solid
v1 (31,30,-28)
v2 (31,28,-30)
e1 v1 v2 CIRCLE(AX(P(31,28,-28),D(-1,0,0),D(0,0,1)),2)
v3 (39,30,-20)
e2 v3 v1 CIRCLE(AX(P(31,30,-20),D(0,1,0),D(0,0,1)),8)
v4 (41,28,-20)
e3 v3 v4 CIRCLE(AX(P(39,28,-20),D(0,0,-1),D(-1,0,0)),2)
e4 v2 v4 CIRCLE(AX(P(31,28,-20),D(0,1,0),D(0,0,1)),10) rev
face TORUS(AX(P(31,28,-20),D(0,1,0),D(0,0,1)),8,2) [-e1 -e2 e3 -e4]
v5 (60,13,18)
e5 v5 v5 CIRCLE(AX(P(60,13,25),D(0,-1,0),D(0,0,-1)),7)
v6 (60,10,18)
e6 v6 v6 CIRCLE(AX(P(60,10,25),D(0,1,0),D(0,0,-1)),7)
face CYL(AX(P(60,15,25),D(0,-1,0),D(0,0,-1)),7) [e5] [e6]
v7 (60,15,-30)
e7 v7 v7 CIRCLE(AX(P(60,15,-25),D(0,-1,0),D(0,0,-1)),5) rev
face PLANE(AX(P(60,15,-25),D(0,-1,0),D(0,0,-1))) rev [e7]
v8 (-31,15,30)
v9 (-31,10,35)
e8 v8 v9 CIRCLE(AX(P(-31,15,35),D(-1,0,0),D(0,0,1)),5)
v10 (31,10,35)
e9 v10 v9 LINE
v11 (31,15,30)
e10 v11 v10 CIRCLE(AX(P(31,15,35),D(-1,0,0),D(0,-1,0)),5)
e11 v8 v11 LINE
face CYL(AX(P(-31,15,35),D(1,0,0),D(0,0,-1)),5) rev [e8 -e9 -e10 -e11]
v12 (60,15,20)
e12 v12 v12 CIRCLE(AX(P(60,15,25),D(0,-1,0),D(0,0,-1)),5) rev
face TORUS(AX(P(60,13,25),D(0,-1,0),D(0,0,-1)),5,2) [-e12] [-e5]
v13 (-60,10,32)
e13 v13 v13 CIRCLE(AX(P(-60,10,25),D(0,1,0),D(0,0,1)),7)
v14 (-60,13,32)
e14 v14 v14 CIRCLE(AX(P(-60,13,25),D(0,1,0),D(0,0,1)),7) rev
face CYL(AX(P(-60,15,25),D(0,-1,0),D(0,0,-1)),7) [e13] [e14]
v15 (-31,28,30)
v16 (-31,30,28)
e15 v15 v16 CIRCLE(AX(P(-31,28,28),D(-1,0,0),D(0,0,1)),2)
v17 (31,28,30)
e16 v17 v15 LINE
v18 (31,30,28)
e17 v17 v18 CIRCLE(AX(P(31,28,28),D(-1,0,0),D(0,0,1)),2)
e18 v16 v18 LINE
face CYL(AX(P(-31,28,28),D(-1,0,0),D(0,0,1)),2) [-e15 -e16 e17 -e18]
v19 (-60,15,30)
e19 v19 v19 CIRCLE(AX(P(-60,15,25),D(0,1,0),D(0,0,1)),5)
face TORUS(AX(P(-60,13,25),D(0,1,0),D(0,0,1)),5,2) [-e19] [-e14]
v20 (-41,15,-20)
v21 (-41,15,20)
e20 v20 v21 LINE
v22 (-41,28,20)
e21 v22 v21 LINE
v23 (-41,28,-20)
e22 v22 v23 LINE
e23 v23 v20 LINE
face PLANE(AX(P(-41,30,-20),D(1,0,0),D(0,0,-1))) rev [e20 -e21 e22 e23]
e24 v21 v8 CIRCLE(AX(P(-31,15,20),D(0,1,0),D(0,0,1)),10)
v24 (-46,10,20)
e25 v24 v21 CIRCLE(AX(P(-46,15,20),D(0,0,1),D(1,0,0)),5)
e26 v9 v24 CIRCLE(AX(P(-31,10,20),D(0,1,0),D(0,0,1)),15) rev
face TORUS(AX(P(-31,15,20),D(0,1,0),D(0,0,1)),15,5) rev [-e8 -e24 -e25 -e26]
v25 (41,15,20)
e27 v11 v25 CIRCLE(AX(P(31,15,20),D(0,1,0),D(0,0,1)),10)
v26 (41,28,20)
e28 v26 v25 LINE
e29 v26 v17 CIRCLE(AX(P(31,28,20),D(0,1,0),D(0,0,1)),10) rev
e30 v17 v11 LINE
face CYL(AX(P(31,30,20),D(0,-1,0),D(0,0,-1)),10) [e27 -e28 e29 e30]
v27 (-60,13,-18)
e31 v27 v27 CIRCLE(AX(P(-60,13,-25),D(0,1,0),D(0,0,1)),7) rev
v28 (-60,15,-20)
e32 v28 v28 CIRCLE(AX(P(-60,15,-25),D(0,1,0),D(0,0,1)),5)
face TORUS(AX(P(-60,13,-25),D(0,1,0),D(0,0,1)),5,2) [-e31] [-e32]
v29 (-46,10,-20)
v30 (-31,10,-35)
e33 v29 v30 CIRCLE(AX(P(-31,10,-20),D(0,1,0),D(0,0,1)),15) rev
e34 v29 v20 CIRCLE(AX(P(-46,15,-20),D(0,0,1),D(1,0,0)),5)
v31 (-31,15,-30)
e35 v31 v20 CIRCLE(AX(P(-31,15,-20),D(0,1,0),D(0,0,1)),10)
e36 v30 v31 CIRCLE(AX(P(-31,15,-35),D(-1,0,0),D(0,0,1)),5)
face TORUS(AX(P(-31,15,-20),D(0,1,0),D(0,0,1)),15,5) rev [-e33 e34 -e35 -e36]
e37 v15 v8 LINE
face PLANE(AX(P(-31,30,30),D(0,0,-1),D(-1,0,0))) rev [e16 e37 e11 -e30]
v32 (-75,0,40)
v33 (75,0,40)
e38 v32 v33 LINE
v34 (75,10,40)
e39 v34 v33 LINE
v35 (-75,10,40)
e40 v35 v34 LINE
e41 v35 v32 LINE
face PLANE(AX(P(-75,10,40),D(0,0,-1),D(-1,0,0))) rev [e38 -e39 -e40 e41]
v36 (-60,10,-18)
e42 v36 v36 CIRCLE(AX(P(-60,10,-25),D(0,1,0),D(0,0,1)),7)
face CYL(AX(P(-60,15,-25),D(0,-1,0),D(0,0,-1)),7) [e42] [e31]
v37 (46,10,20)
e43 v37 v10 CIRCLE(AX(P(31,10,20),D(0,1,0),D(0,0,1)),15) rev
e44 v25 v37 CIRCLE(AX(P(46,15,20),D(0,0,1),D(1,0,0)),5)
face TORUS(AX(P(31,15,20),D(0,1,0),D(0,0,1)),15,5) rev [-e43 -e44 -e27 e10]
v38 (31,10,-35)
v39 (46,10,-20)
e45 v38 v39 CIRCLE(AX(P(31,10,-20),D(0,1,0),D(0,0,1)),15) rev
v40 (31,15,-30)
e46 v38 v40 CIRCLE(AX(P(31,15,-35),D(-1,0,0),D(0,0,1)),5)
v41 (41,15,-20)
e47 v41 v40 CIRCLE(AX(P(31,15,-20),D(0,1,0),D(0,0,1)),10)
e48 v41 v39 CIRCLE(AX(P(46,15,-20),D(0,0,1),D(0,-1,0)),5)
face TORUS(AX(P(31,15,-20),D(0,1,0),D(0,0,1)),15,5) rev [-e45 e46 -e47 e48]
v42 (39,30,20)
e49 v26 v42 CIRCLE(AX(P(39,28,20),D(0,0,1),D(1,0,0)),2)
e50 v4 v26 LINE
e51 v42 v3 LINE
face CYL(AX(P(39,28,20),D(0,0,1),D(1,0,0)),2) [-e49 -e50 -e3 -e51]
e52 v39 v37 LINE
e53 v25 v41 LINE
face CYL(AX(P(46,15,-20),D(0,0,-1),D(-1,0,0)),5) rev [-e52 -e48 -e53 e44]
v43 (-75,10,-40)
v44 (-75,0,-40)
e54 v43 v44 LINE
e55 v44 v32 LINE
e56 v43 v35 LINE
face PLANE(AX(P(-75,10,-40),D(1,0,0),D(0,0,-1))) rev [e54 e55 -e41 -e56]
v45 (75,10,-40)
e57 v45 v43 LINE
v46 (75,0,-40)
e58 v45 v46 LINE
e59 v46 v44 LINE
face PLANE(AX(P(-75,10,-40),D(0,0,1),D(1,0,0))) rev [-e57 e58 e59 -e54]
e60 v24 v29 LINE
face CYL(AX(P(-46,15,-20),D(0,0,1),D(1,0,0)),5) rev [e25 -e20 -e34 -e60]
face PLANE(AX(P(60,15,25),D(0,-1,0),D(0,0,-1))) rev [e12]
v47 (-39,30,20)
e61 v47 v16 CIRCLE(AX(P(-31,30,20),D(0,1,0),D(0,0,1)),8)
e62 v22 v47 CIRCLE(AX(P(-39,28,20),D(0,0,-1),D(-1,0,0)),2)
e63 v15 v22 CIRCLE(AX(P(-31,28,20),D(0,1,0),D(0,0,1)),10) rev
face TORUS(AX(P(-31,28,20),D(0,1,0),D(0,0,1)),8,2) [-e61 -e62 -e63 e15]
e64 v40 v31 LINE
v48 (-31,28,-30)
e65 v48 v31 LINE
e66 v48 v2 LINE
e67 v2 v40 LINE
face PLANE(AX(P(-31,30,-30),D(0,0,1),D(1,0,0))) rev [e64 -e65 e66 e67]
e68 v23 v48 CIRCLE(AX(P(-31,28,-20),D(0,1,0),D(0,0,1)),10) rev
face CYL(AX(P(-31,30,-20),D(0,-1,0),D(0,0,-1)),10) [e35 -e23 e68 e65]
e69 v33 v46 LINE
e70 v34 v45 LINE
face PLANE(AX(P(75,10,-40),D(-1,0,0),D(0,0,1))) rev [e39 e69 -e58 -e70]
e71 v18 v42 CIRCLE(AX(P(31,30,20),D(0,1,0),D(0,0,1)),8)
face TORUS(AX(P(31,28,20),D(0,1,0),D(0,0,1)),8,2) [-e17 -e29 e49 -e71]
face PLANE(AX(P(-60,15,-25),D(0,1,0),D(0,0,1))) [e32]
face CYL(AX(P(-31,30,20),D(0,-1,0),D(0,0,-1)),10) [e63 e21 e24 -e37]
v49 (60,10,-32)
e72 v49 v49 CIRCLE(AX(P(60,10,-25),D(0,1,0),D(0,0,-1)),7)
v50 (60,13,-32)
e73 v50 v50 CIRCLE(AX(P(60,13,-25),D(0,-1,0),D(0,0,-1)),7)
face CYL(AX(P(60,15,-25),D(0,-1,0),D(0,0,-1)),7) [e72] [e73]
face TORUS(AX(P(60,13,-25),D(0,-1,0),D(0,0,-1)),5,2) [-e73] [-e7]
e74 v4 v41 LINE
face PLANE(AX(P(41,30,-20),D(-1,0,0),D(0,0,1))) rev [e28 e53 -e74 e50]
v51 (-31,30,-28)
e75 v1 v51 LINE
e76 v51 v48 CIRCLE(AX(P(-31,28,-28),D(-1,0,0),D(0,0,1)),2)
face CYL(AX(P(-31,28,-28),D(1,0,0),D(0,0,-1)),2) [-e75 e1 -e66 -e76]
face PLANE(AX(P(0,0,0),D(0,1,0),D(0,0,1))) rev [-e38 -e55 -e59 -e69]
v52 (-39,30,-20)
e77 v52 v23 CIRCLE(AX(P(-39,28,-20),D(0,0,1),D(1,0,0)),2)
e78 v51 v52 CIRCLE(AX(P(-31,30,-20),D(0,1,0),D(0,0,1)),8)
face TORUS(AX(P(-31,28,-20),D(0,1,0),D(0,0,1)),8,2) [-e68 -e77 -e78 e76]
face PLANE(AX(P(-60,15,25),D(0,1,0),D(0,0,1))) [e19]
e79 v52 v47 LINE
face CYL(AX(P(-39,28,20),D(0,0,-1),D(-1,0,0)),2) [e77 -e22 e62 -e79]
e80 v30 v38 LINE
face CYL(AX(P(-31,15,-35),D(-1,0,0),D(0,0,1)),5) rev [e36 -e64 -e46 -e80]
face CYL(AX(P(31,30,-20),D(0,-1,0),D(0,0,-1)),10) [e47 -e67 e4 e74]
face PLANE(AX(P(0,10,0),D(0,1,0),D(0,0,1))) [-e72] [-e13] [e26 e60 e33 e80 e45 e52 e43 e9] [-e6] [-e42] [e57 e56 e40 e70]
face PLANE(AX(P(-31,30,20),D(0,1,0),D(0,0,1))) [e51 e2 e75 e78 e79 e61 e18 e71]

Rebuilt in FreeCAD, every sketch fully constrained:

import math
import FreeCAD as App
import Part
import Sketcher
Q = App.Units.Quantity


def edges_at(feature, points):
    """Names of the edges that pass closest to the given points."""
    edges = feature.Shape.Edges
    near = lambda p: min(range(len(edges)), key=lambda i: edges[i].distToShape(Part.Vertex(*p))[0])
    return sorted({f"Edge{near(p) + 1}" for p in points})


def add_polygon(sketch, points):
    """Adds a closed chain of lines whose ends are joined by coincident constraints."""
    first, n = sketch.GeometryCount, len(points)
    for a, b in zip(points, points[1:] + points[:1]):
        sketch.addGeometry(Part.LineSegment(App.Vector(*a, 0), App.Vector(*b, 0)), False)
    for i in range(n):
        sketch.addConstraint(Sketcher.Constraint("Coincident", first + i, 2, first + (i + 1) % n, 1))

doc = App.newDocument("Part")
body = doc.addObject("PartDesign::Body", "Body")

sketch1 = body.newObject("Sketcher::SketchObject", "Sketch")
sketch1.AttachmentSupport = (doc.getObject("XZ_Plane"), [""])
sketch1.MapMode = "FlatFace"
add_polygon(sketch1, [(-75, -40), (-75, 40), (75, 40), (75, -40)])
sketch1.addConstraint([
    Sketcher.Constraint("Vertical", 0),
    Sketcher.Constraint("Horizontal", 1),
    Sketcher.Constraint("Vertical", 2),
    Sketcher.Constraint("Horizontal", 3),
    Sketcher.Constraint("Symmetric", 0, 2, 2, 2, -1, 1),
    Sketcher.Constraint("DistanceX", 1, 1, 1, 2, Q("150 mm")),
    Sketcher.Constraint("DistanceY", 0, 1, 0, 2, Q("80 mm")),
])
pad1 = body.newObject("PartDesign::Pad", "Pad")
pad1.Profile = sketch1
pad1.Length = 10
pad1.Reversed = True

sketch2 = body.newObject("Sketcher::SketchObject", "Sketch001")
sketch2.AttachmentSupport = (doc.getObject("XZ_Plane"), [""])
sketch2.MapMode = "FlatFace"
sketch2.AttachmentOffset = App.Placement(App.Vector(0, 0, -10), App.Rotation())
sketch2.addGeometry([
    Part.Circle(App.Vector(-60, -25, 0), App.Vector(0, 0, 1), 7),
    Part.Circle(App.Vector(-60, 25, 0), App.Vector(0, 0, 1), 7),
    Part.Circle(App.Vector(60, 25, 0), App.Vector(0, 0, 1), 7),
    Part.Circle(App.Vector(60, -25, 0), App.Vector(0, 0, 1), 7),
], False)
sketch2.addConstraint([
    Sketcher.Constraint("Equal", 0, 1),
    Sketcher.Constraint("Equal", 1, 2),
    Sketcher.Constraint("Equal", 2, 3),
    Sketcher.Constraint("Symmetric", 0, 3, 2, 3, -1, 1),
    Sketcher.Constraint("Symmetric", 1, 3, 3, 3, -1, 1),
    Sketcher.Constraint("Symmetric", 1, 3, 2, 3, -2),
    Sketcher.Constraint("Diameter", 0, Q("14 mm")),
    Sketcher.Constraint("DistanceX", 0, 3, -1, 1, Q("60 mm")),
    Sketcher.Constraint("DistanceY", 0, 3, -1, 1, Q("25 mm")),
])
pad2 = body.newObject("PartDesign::Pad", "Pad001")
pad2.Profile = sketch2
pad2.Length = 5
pad2.Reversed = True
doc.recompute()

fillet = body.newObject("PartDesign::Fillet", "Fillet")
fillet.Base = (pad2, edges_at(pad2, [
    (-60, 15, -32),
    (-60, 15, 18),
    (60, 15, 32),
    (60, 15, -18),
]))
fillet.Radius = 2

sketch3 = body.newObject("Sketcher::SketchObject", "Sketch002")
sketch3.AttachmentSupport = (doc.getObject("XZ_Plane"), [""])
sketch3.MapMode = "FlatFace"
sketch3.AttachmentOffset = App.Placement(App.Vector(0, 0, -10), App.Rotation())
sketch3.addGeometry([
    Part.LineSegment(App.Vector(31, -30, 0), App.Vector(-31, -30, 0)),
    Part.ArcOfCircle(Part.Circle(App.Vector(-31, -20, 0), App.Vector(0, 0, 1), 10), math.radians(180), math.radians(270)),
    Part.LineSegment(App.Vector(-41, -20, 0), App.Vector(-41, 20, 0)),
    Part.ArcOfCircle(Part.Circle(App.Vector(-31, 20, 0), App.Vector(0, 0, 1), 10), math.radians(90), math.radians(180)),
    Part.LineSegment(App.Vector(-31, 30, 0), App.Vector(31, 30, 0)),
    Part.ArcOfCircle(Part.Circle(App.Vector(31, 20, 0), App.Vector(0, 0, 1), 10), math.radians(0), math.radians(90)),
    Part.LineSegment(App.Vector(41, 20, 0), App.Vector(41, -20, 0)),
    Part.ArcOfCircle(Part.Circle(App.Vector(31, -20, 0), App.Vector(0, 0, 1), 10), math.radians(-90), math.radians(0)),
], False)
sketch3.addConstraint([
    Sketcher.Constraint("Tangent", 0, 2, 1, 2),
    Sketcher.Constraint("Tangent", 1, 1, 2, 1),
    Sketcher.Constraint("Tangent", 2, 2, 3, 2),
    Sketcher.Constraint("Tangent", 3, 1, 4, 1),
    Sketcher.Constraint("Tangent", 4, 2, 5, 2),
    Sketcher.Constraint("Tangent", 5, 1, 6, 1),
    Sketcher.Constraint("Tangent", 6, 2, 7, 2),
    Sketcher.Constraint("Tangent", 7, 1, 0, 1),
    Sketcher.Constraint("Horizontal", 0),
    Sketcher.Constraint("Vertical", 2),
    Sketcher.Constraint("Horizontal", 4),
    Sketcher.Constraint("Vertical", 6),
    Sketcher.Constraint("Equal", 1, 3),
    Sketcher.Constraint("Equal", 3, 5),
    Sketcher.Constraint("Equal", 5, 7),
    Sketcher.Constraint("Symmetric", 1, 3, 5, 3, -1, 1),
    Sketcher.Constraint("Radius", 1, Q("10 mm")),
    Sketcher.Constraint("DistanceX", 0, 2, 0, 1, Q("62 mm")),
    Sketcher.Constraint("DistanceY", 2, 1, 2, 2, Q("40 mm")),
])
pad3 = body.newObject("PartDesign::Pad", "Pad002")
pad3.Profile = sketch3
pad3.Length = 20
pad3.Reversed = True
doc.recompute()

fillet2 = body.newObject("PartDesign::Fillet", "Fillet001")
fillet2.Base = (pad3, edges_at(pad3, [
    (-38.071, 30, 27.071),
    (0, 30, 30),
    (38.071, 30, 27.071),
    (41, 30, 0),
    (38.071, 30, -27.071),
    (0, 30, -30),
    (-38.071, 30, -27.071),
    (-41, 30, 0),
]))
fillet2.Radius = 2
doc.recompute()

fillet3 = body.newObject("PartDesign::Fillet", "Fillet002")
fillet3.Base = (fillet2, edges_at(fillet2, [
    (-38.071, 10, 27.071),
    (0, 10, 30),
    (38.071, 10, 27.071),
    (41, 10, 0),
    (38.071, 10, -27.071),
    (0, 10, -30),
    (-38.071, 10, -27.071),
    (-41, 10, 0),
]))
fillet3.Radius = 5

doc.recompute()
